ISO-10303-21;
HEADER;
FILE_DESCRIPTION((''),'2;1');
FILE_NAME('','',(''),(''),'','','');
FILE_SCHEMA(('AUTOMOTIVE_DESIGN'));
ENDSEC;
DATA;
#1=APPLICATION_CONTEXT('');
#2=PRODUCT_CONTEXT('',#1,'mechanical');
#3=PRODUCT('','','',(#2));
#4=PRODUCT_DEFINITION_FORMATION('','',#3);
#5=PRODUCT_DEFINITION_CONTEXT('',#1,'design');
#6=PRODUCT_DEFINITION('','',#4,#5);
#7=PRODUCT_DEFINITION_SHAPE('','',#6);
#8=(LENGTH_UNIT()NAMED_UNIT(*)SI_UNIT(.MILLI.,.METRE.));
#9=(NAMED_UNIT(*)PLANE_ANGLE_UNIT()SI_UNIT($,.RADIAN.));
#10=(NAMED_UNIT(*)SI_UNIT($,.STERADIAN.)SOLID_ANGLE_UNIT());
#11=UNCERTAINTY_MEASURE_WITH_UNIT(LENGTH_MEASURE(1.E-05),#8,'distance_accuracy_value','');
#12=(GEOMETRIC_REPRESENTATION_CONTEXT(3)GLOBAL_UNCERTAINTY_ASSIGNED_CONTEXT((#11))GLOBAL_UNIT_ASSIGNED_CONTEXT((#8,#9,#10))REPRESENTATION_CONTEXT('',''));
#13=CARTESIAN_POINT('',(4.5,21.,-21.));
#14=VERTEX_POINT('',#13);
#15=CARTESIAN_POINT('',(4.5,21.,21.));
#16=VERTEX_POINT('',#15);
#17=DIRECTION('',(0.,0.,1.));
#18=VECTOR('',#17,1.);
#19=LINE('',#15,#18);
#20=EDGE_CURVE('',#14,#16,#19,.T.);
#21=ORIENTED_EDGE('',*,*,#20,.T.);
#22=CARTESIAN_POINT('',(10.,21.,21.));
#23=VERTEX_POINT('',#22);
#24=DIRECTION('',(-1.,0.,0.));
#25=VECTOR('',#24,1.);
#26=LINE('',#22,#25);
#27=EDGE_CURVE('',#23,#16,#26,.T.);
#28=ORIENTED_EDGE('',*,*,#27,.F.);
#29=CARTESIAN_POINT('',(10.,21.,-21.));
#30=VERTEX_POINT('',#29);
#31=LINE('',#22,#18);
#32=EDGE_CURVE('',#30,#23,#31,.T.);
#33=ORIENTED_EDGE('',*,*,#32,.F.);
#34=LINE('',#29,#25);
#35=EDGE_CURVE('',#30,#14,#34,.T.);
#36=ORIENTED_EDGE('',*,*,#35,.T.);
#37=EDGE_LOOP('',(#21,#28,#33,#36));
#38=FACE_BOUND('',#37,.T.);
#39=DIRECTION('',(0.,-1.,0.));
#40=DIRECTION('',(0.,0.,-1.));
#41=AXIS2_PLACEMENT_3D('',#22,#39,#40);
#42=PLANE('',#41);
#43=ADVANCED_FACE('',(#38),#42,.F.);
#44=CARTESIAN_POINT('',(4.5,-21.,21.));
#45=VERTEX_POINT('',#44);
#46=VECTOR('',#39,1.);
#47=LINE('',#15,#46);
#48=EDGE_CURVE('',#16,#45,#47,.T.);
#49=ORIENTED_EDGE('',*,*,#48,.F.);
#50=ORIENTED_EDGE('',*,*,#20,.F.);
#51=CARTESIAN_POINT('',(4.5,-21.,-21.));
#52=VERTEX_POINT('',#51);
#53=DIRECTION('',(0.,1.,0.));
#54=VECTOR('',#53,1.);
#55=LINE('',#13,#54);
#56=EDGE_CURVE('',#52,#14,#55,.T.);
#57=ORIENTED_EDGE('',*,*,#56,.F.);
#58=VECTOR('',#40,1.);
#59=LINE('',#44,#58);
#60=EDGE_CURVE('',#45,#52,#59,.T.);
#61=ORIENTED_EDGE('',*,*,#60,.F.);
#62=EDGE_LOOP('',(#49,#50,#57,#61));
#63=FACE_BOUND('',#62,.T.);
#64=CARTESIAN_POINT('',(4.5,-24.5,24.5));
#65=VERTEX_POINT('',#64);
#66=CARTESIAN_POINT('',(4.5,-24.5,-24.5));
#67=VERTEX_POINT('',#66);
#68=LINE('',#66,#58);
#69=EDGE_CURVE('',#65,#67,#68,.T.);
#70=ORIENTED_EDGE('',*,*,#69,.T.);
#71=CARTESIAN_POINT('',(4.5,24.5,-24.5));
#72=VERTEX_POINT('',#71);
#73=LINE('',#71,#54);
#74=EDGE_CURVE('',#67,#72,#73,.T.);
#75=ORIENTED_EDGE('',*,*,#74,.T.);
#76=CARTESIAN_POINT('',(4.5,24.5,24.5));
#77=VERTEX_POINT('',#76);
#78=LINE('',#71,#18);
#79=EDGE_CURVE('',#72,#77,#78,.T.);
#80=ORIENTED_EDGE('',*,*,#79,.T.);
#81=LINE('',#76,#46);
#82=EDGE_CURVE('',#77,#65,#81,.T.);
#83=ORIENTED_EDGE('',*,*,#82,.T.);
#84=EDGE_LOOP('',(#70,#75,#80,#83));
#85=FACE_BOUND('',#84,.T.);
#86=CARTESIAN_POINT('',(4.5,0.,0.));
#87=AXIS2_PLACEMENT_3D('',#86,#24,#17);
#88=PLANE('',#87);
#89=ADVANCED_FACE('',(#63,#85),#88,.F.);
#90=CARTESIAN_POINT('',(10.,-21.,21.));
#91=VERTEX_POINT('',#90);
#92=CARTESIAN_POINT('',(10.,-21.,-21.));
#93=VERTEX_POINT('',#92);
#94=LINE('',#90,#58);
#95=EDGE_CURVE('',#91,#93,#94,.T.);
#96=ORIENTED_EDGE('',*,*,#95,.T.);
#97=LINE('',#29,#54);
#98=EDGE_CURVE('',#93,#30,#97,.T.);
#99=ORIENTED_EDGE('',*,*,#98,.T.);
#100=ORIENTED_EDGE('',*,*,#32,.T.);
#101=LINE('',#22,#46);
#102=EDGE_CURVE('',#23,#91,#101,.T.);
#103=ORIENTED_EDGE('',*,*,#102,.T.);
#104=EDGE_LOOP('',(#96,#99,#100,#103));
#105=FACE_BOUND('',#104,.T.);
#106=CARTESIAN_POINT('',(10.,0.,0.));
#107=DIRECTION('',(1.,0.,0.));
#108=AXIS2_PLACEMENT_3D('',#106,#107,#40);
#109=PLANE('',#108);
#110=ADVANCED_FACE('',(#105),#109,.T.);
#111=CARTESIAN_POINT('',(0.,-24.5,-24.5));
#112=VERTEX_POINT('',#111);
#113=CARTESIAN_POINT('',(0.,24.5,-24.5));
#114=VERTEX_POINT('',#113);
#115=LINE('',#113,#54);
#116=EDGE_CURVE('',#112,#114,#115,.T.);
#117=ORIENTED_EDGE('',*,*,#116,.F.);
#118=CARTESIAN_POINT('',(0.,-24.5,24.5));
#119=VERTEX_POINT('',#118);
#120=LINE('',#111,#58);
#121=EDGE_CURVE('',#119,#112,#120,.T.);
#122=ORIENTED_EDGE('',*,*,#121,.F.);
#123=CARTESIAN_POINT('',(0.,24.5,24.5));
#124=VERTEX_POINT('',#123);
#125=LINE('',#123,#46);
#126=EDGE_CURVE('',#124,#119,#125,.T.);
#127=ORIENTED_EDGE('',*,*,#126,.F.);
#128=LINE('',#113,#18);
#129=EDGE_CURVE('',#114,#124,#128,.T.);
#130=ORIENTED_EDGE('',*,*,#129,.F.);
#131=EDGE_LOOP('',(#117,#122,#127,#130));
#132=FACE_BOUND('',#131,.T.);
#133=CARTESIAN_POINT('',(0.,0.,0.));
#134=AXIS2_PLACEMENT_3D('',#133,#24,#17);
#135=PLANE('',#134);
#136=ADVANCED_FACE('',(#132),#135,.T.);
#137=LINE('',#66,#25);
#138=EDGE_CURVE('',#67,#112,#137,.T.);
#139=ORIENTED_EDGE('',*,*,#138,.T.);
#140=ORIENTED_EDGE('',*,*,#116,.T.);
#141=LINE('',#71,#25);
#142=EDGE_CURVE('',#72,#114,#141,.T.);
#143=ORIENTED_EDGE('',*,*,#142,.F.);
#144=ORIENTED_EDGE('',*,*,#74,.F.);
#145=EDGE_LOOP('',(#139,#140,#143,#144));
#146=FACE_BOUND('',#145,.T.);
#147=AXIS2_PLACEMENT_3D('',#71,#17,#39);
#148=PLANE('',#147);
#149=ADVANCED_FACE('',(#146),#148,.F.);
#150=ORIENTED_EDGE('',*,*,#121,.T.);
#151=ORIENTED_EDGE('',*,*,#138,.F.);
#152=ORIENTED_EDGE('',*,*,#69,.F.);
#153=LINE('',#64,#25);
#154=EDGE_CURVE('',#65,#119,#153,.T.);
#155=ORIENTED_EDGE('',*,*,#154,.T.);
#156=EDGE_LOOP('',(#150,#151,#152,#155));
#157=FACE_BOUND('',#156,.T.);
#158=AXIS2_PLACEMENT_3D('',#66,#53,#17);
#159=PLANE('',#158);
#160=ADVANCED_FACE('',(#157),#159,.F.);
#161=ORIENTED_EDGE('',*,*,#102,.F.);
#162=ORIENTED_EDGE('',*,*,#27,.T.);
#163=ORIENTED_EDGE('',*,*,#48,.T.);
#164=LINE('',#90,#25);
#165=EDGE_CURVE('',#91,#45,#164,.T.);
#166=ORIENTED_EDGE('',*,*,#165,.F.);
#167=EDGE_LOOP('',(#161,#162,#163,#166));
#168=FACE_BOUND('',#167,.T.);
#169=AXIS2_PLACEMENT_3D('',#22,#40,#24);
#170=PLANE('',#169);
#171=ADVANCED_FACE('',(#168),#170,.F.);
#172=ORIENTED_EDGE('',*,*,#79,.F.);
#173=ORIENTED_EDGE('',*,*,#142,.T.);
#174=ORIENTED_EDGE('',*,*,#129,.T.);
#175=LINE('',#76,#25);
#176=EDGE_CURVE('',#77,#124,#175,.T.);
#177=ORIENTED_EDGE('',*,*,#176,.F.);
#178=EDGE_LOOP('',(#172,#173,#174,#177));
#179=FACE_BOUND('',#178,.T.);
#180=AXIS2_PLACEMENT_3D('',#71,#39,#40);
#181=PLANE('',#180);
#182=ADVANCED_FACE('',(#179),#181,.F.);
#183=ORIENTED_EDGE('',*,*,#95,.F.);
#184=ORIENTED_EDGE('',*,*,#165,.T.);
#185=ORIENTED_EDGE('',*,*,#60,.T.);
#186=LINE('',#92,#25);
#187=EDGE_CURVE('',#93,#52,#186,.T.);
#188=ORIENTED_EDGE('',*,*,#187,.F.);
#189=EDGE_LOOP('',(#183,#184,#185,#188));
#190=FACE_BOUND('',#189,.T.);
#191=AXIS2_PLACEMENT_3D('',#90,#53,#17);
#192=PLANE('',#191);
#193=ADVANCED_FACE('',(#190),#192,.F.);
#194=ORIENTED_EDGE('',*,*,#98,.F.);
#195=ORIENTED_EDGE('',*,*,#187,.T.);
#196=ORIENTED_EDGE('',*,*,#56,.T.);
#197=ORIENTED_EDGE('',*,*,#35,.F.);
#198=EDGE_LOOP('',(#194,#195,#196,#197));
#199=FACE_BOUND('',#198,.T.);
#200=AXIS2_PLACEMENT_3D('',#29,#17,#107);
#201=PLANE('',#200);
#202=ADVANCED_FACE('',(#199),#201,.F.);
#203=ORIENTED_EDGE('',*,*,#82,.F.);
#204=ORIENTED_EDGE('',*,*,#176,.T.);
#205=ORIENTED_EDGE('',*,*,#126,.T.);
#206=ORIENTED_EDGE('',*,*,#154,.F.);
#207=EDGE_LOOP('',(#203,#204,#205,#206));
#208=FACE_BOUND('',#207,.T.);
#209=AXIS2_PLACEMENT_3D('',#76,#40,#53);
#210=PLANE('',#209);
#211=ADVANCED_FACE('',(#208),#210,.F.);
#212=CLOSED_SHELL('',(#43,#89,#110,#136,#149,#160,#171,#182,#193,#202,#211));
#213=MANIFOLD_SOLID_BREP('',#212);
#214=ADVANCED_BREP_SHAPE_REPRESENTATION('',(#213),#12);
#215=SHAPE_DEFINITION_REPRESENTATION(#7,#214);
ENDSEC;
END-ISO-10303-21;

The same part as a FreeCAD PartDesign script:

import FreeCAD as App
import Part
import Sketcher


def add_polygon(sketch, points):
    """Adds a closed chain of lines whose ends are joined by coincident constraints."""
    first, n = sketch.GeometryCount, len(points)
    for a, b in zip(points, points[1:] + points[:1]):
        sketch.addGeometry(Part.LineSegment(App.Vector(*a, 0), App.Vector(*b, 0)), False)
    for i in range(n):
        sketch.addConstraint(Sketcher.Constraint("Coincident", first + i, 2, first + (i + 1) % n, 1))

doc = App.newDocument("Part")
body = doc.addObject("PartDesign::Body", "Body")

sketch1 = doc.addObject("Sketcher::SketchObject", "Sketch")
body.addObject(sketch1)
sketch1.AttachmentSupport = (doc.YZ_Plane, [""])
sketch1.MapMode = "FlatFace"
add_polygon(sketch1, [(24, 24), (-24, 24), (-24, -24), (24, -24)])
sketch1.addConstraint([
    Sketcher.Constraint("Horizontal", 0),
    Sketcher.Constraint("Vertical", 1),
    Sketcher.Constraint("Horizontal", 2),
    Sketcher.Constraint("Vertical", 3),
    Sketcher.Constraint("Symmetric", 0, 2, 2, 2, -1, 1),
    Sketcher.Constraint("Equal", 2, 1),
    Sketcher.Constraint("DistanceX", 0, 2, 0, 1, 49.0),
])
pad1 = doc.addObject("PartDesign::Pad", "Pad")
body.addObject(pad1)
pad1.Profile = sketch1
pad1.Length = 4.5

sketch2 = doc.addObject("Sketcher::SketchObject", "Sketch001")
body.addObject(sketch2)
sketch2.AttachmentSupport = (doc.YZ_Plane, [""])
sketch2.MapMode = "FlatFace"
sketch2.AttachmentOffset = App.Placement(App.Vector(0, 0, 4.5), App.Rotation())
add_polygon(sketch2, [(21, 21), (-21, 21), (-21, -21), (21, -21)])
sketch2.addConstraint([
    Sketcher.Constraint("Horizontal", 0),
    Sketcher.Constraint("Vertical", 1),
    Sketcher.Constraint("Horizontal", 2),
    Sketcher.Constraint("Vertical", 3),
    Sketcher.Constraint("Symmetric", 0, 2, 2, 2, -1, 1),
    Sketcher.Constraint("Equal", 2, 1),
    Sketcher.Constraint("DistanceX", 0, 2, 0, 1, 42.0),
])
pad2 = doc.addObject("PartDesign::Pad", "Pad001")
body.addObject(pad2)
pad2.Profile = sketch2
pad2.Length = 5.5

doc.recompute()
